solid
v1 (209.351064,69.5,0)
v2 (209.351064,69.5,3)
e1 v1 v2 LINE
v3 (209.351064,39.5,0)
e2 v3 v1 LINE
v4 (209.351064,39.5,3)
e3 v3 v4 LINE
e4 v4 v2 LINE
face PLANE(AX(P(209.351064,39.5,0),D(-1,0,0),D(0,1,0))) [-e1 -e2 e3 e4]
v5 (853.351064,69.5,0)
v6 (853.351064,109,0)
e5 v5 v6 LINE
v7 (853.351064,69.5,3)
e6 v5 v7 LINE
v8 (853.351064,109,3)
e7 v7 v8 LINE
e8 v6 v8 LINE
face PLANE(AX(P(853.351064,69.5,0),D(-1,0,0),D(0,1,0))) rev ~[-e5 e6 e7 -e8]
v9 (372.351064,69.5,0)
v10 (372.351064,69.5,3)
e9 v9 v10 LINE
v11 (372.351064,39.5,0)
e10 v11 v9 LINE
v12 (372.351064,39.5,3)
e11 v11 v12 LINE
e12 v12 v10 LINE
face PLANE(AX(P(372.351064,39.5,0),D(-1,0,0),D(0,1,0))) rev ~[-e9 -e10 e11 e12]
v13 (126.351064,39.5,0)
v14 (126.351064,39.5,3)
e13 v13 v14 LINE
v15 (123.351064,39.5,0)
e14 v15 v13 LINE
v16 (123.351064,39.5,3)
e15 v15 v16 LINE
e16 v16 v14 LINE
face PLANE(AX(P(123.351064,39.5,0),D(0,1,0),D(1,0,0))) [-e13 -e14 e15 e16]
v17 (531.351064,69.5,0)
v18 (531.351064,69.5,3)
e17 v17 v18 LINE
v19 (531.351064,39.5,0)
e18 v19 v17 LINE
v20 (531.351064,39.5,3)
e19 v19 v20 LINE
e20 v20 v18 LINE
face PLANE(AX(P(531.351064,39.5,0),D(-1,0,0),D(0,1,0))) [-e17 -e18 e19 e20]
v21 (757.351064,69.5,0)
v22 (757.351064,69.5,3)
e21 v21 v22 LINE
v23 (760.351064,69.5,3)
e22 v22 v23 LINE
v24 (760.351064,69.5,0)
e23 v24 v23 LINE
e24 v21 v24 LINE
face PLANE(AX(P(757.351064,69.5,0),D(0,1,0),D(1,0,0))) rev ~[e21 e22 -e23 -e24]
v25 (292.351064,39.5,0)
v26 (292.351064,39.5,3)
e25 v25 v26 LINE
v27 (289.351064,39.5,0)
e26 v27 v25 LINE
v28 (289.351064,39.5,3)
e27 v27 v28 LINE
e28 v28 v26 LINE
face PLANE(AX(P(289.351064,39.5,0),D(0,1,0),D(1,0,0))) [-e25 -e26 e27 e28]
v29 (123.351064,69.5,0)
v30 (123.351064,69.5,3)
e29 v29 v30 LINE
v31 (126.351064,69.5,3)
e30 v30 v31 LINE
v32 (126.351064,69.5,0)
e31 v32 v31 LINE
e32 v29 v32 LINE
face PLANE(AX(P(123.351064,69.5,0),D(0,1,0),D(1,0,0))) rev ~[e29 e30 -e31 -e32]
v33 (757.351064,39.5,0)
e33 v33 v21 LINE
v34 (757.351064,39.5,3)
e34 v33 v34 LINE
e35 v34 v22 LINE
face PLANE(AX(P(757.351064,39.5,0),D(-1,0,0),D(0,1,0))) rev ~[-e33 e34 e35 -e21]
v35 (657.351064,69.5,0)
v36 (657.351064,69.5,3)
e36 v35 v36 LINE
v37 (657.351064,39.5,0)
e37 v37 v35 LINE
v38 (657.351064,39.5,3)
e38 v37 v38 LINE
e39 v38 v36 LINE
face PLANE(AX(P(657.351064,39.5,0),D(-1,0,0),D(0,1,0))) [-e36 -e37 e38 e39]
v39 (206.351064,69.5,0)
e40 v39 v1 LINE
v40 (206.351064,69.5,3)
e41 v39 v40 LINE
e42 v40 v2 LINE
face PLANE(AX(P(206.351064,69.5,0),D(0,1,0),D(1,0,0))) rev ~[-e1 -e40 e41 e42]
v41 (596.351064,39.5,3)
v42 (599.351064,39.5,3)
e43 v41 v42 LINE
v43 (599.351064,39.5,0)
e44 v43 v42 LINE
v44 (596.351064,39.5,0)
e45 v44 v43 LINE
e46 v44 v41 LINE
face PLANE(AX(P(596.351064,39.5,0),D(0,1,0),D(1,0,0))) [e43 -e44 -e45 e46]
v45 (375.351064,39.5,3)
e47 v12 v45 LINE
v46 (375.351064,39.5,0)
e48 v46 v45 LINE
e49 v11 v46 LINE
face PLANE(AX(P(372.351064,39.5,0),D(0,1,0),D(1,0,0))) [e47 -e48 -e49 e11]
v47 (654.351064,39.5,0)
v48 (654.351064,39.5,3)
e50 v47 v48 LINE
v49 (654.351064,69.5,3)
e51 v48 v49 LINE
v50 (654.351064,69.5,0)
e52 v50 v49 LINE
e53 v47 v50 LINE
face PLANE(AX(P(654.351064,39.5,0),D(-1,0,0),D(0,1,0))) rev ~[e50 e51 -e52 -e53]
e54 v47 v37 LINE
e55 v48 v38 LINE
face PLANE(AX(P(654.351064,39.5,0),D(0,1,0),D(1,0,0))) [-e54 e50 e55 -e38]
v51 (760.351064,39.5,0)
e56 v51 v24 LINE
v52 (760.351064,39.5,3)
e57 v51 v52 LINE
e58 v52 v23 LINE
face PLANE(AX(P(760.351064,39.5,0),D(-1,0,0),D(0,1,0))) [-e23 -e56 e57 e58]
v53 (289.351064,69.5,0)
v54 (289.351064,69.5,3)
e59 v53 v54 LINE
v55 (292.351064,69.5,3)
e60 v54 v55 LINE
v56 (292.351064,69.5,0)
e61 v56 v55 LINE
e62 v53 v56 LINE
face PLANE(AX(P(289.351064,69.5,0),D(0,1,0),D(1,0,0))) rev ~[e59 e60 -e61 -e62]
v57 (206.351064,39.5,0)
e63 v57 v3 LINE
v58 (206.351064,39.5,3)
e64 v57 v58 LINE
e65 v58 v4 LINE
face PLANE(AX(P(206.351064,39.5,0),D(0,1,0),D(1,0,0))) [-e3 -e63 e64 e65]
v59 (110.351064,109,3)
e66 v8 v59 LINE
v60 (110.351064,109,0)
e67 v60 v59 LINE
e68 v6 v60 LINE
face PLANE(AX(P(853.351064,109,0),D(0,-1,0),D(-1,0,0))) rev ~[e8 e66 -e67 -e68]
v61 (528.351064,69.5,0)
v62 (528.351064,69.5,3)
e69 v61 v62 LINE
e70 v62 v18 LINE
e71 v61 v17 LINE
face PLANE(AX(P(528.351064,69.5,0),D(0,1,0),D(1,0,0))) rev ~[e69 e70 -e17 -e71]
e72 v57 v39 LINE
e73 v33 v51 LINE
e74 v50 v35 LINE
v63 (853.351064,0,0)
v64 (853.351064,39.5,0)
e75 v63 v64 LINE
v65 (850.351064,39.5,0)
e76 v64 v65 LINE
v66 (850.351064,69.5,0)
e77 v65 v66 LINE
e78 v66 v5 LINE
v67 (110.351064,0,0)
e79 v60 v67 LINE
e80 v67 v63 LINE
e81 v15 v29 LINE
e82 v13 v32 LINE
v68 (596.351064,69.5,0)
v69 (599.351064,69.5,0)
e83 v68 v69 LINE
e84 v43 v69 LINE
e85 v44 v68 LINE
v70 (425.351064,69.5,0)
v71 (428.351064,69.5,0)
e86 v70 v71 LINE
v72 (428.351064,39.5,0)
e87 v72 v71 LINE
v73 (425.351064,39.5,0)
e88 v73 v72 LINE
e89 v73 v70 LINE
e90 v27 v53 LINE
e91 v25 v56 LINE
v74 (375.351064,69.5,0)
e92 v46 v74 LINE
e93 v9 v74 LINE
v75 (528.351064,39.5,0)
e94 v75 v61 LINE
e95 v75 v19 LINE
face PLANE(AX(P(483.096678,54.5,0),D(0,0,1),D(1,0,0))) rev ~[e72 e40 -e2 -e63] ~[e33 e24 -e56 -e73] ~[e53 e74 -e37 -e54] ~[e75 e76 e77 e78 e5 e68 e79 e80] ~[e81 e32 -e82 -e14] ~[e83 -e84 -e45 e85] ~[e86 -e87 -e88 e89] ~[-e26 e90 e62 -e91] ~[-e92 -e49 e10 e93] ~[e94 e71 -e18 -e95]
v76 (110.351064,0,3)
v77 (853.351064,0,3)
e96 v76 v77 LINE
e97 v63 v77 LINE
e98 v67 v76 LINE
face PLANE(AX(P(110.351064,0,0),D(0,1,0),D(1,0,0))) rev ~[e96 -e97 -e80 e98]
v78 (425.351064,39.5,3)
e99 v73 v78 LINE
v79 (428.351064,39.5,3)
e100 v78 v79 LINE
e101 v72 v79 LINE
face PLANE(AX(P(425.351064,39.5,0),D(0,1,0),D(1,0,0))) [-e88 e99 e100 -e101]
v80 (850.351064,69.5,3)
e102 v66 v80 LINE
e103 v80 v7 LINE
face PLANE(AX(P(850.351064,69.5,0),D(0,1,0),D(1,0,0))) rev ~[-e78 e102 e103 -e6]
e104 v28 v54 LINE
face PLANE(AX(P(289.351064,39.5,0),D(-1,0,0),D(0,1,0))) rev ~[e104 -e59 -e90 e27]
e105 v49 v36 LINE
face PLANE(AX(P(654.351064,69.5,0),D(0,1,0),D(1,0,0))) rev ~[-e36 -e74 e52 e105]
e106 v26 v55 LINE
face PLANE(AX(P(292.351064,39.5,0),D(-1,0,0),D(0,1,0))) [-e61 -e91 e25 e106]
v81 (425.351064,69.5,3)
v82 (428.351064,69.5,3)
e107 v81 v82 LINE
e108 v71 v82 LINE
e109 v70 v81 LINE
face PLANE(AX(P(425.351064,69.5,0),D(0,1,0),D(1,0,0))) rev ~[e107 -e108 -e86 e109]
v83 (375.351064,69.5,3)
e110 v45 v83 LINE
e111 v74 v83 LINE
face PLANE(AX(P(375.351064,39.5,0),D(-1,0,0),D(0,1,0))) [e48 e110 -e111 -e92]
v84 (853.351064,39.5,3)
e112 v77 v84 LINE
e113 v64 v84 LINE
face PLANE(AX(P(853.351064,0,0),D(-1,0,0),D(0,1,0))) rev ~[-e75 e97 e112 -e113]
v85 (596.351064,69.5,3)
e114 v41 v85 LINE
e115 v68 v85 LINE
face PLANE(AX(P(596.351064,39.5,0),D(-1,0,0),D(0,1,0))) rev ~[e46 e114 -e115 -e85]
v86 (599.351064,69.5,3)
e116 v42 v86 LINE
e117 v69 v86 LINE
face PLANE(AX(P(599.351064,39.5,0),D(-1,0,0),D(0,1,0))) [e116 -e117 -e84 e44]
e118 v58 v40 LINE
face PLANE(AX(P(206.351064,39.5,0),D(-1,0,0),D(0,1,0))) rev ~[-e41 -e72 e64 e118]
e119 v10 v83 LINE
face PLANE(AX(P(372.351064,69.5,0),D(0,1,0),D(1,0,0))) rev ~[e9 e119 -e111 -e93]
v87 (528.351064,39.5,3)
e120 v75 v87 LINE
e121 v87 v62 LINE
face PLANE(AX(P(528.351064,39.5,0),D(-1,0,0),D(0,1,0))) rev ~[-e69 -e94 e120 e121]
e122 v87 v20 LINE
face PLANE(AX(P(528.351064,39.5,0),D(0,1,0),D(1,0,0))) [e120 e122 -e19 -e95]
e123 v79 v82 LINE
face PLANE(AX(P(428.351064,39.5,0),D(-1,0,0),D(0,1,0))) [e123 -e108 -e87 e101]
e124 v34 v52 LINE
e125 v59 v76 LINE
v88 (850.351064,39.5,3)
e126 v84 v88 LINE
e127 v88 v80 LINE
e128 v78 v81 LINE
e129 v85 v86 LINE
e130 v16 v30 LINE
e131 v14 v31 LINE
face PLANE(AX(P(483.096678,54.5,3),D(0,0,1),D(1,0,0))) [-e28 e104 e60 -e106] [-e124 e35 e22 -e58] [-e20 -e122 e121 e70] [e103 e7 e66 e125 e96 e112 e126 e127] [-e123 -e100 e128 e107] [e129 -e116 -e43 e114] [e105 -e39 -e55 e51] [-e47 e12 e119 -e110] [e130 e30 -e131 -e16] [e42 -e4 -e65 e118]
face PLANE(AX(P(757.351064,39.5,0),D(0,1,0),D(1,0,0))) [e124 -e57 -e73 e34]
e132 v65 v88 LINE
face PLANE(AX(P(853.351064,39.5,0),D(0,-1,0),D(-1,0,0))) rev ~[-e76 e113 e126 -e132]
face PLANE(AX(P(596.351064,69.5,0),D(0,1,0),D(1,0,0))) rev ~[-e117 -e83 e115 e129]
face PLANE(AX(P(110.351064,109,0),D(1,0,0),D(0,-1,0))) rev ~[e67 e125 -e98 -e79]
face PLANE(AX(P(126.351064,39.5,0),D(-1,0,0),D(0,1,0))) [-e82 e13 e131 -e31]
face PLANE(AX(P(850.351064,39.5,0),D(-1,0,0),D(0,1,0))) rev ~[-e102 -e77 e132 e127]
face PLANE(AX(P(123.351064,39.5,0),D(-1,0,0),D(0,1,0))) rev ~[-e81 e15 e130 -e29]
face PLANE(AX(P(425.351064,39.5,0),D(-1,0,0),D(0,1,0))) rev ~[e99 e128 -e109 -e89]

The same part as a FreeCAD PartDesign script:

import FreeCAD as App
import Part
import Sketcher


def add_polygon(sketch, points):
    """Adds a closed chain of lines whose ends are joined by coincident constraints."""
    first, n = sketch.GeometryCount, len(points)
    for a, b in zip(points, points[1:] + points[:1]):
        sketch.addGeometry(Part.LineSegment(App.Vector(*a, 0), App.Vector(*b, 0)), False)
    for i in range(n):
        sketch.addConstraint(Sketcher.Constraint("Coincident", first + i, 2, first + (i + 1) % n, 1))

doc = App.newDocument("Part")
params = doc.addObject("Spreadsheet::Sheet", "Params")
for row, (alias, value) in enumerate([
    ("sketch1_width", "743 mm"),
    ("sketch1_width2", "3 mm"),
    ("sketch1_height", "109 mm"),
    ("sketch1_height2", "30 mm"),
    ("pad1_length", "3 mm"),
], start=1):
    params.set(f"A{row}", alias)
    params.set(f"B{row}", "=" + value)
    params.setAlias(f"B{row}", alias)

body = doc.addObject("PartDesign::Body", "Body")

sketch1 = body.newObject("Sketcher::SketchObject", "Sketch")
sketch1.AttachmentSupport = (doc.getObject("XY_Plane"), [""])
sketch1.MapMode = "FlatFace"
add_polygon(sketch1, [(853.4, 109), (110.4, 109), (110.4, 0), (853.4, 0), (853.4, 39.5), (850.4, 39.5), (850.4, 69.5), (853.4, 69.5)])
add_polygon(sketch1, [(126.4, 39.5), (123.4, 39.5), (123.4, 69.5), (126.4, 69.5)])
add_polygon(sketch1, [(209.4, 39.5), (206.4, 39.5), (206.4, 69.5), (209.4, 69.5)])
add_polygon(sketch1, [(292.4, 39.5), (289.4, 39.5), (289.4, 69.5), (292.4, 69.5)])
add_polygon(sketch1, [(375.4, 39.5), (372.4, 39.5), (372.4, 69.5), (375.4, 69.5)])
add_polygon(sketch1, [(428.4, 39.5), (425.4, 39.5), (425.4, 69.5), (428.4, 69.5)])
add_polygon(sketch1, [(531.4, 39.5), (528.4, 39.5), (528.4, 69.5), (531.4, 69.5)])
add_polygon(sketch1, [(599.4, 39.5), (596.4, 39.5), (596.4, 69.5), (599.4, 69.5)])
add_polygon(sketch1, [(657.4, 39.5), (654.4, 39.5), (654.4, 69.5), (657.4, 69.5)])
add_polygon(sketch1, [(760.4, 39.5), (757.4, 39.5), (757.4, 69.5), (760.4, 69.5)])
sketch1.addConstraint(Sketcher.Constraint("Horizontal", 0))
sketch1.addConstraint(Sketcher.Constraint("Vertical", 1))
sketch1.addConstraint(Sketcher.Constraint("Horizontal", 2))
sketch1.addConstraint(Sketcher.Constraint("Vertical", 3))
sketch1.addConstraint(Sketcher.Constraint("Horizontal", 4))
sketch1.addConstraint(Sketcher.Constraint("Vertical", 5))
sketch1.addConstraint(Sketcher.Constraint("Horizontal", 6))
sketch1.addConstraint(Sketcher.Constraint("Vertical", 7))
sketch1.addConstraint(Sketcher.Constraint("Horizontal", 8))
sketch1.addConstraint(Sketcher.Constraint("Vertical", 9))
sketch1.addConstraint(Sketcher.Constraint("Horizontal", 10))
sketch1.addConstraint(Sketcher.Constraint("Vertical", 11))
sketch1.addConstraint(Sketcher.Constraint("Horizontal", 12))
sketch1.addConstraint(Sketcher.Constraint("Vertical", 13))
sketch1.addConstraint(Sketcher.Constraint("Horizontal", 14))
sketch1.addConstraint(Sketcher.Constraint("Vertical", 15))
sketch1.addConstraint(Sketcher.Constraint("Horizontal", 16))
sketch1.addConstraint(Sketcher.Constraint("Vertical", 17))
sketch1.addConstraint(Sketcher.Constraint("Horizontal", 18))
sketch1.addConstraint(Sketcher.Constraint("Vertical", 19))
sketch1.addConstraint(Sketcher.Constraint("Horizontal", 20))
sketch1.addConstraint(Sketcher.Constraint("Vertical", 21))
sketch1.addConstraint(Sketcher.Constraint("Horizontal", 22))
sketch1.addConstraint(Sketcher.Constraint("Vertical", 23))
sketch1.addConstraint(Sketcher.Constraint("Horizontal", 24))
sketch1.addConstraint(Sketcher.Constraint("Vertical", 25))
sketch1.addConstraint(Sketcher.Constraint("Horizontal", 26))
sketch1.addConstraint(Sketcher.Constraint("Vertical", 27))
sketch1.addConstraint(Sketcher.Constraint("Horizontal", 28))
sketch1.addConstraint(Sketcher.Constraint("Vertical", 29))
sketch1.addConstraint(Sketcher.Constraint("Horizontal", 30))
sketch1.addConstraint(Sketcher.Constraint("Vertical", 31))
sketch1.addConstraint(Sketcher.Constraint("Horizontal", 32))
sketch1.addConstraint(Sketcher.Constraint("Vertical", 33))
sketch1.addConstraint(Sketcher.Constraint("Horizontal", 34))
sketch1.addConstraint(Sketcher.Constraint("Vertical", 35))
sketch1.addConstraint(Sketcher.Constraint("Horizontal", 36))
sketch1.addConstraint(Sketcher.Constraint("Vertical", 37))
sketch1.addConstraint(Sketcher.Constraint("Horizontal", 38))
sketch1.addConstraint(Sketcher.Constraint("Vertical", 39))
sketch1.addConstraint(Sketcher.Constraint("Horizontal", 40))
sketch1.addConstraint(Sketcher.Constraint("Vertical", 41))
sketch1.addConstraint(Sketcher.Constraint("Horizontal", 42))
sketch1.addConstraint(Sketcher.Constraint("Vertical", 43))
sketch1.addConstraint(Sketcher.Constraint("PointOnObject", 1, 2, -1))
sketch1.addConstraint(Sketcher.Constraint("Horizontal", 4, 2, 8, 2))
sketch1.addConstraint(Sketcher.Constraint("Horizontal", 6, 2, 9, 2))
sketch1.addConstraint(Sketcher.Constraint("Horizontal", 11, 2, 12, 2))
sketch1.addConstraint(Sketcher.Constraint("Horizontal", 10, 2, 13, 2))
sketch1.addConstraint(Sketcher.Constraint("Horizontal", 15, 2, 16, 2))
sketch1.addConstraint(Sketcher.Constraint("Horizontal", 14, 2, 17, 2))
sketch1.addConstraint(Sketcher.Constraint("Horizontal", 19, 2, 20, 2))
sketch1.addConstraint(Sketcher.Constraint("Horizontal", 18, 2, 21, 2))
sketch1.addConstraint(Sketcher.Constraint("Horizontal", 23, 2, 24, 2))
sketch1.addConstraint(Sketcher.Constraint("Horizontal", 22, 2, 25, 2))
sketch1.addConstraint(Sketcher.Constraint("Horizontal", 27, 2, 28, 2))
sketch1.addConstraint(Sketcher.Constraint("Horizontal", 26, 2, 29, 2))
sketch1.addConstraint(Sketcher.Constraint("Horizontal", 31, 2, 32, 2))
sketch1.addConstraint(Sketcher.Constraint("Horizontal", 30, 2, 33, 2))
sketch1.addConstraint(Sketcher.Constraint("Horizontal", 35, 2, 36, 2))
sketch1.addConstraint(Sketcher.Constraint("Horizontal", 34, 2, 37, 2))
sketch1.addConstraint(Sketcher.Constraint("Horizontal", 39, 2, 40, 2))
sketch1.addConstraint(Sketcher.Constraint("Horizontal", 38, 2, 41, 2))
sketch1.addConstraint(Sketcher.Constraint("Vertical", 3, 2, 6, 2))
sketch1.addConstraint(Sketcher.Constraint("Equal", 6, 8))
sketch1.addConstraint(Sketcher.Constraint("Equal", 10, 12))
sketch1.addConstraint(Sketcher.Constraint("Equal", 14, 16))
sketch1.addConstraint(Sketcher.Constraint("Equal", 18, 20))
sketch1.addConstraint(Sketcher.Constraint("Equal", 22, 24))
sketch1.addConstraint(Sketcher.Constraint("Equal", 26, 28))
sketch1.addConstraint(Sketcher.Constraint("Equal", 30, 32))
sketch1.addConstraint(Sketcher.Constraint("Equal", 34, 36))
sketch1.addConstraint(Sketcher.Constraint("Equal", 38, 40))
sketch1.addConstraint(Sketcher.Constraint("Equal", 3, 7))
sketch1.addConstraint(Sketcher.Constraint("DistanceX", 0, 2, 0, 1, 743.0))
sketch1.addConstraint(Sketcher.Constraint("DistanceX", 4, 2, 4, 1, 3.0))
sketch1.addConstraint(Sketcher.Constraint("DistanceY", 1, 2, 1, 1, 109.0))
sketch1.addConstraint(Sketcher.Constraint("DistanceY", 5, 1, 5, 2, 30.0))
sketch1.addConstraint(Sketcher.Constraint("DistanceX", 1, 2, 8, 2, 13.0))
sketch1.addConstraint(Sketcher.Constraint("DistanceX", 11, 2, 12, 2, 80.0))
sketch1.addConstraint(Sketcher.Constraint("DistanceX", 15, 2, 16, 2, 80.0))
sketch1.addConstraint(Sketcher.Constraint("DistanceX", 19, 2, 20, 2, 80.0))
sketch1.addConstraint(Sketcher.Constraint("DistanceX", 23, 2, 24, 2, 50.0))
sketch1.addConstraint(Sketcher.Constraint("DistanceX", 27, 2, 28, 2, 100.0))
sketch1.addConstraint(Sketcher.Constraint("DistanceX", 31, 2, 32, 2, 65.0))
sketch1.addConstraint(Sketcher.Constraint("DistanceX", 35, 2, 36, 2, 55.0))
sketch1.addConstraint(Sketcher.Constraint("DistanceX", 40, 2, 4, 2, 93.0))
sketch1.addConstraint(Sketcher.Constraint("DistanceX", -1, 1, 0, 2, 110.351064))
sketch1.setExpression("Constraints[118]", "Params.sketch1_width")
sketch1.setExpression("Constraints[119]", "Params.sketch1_width2")
sketch1.setExpression("Constraints[120]", "Params.sketch1_height")
sketch1.setExpression("Constraints[121]", "Params.sketch1_height2")
pad1 = body.newObject("PartDesign::Pad", "Pad")
pad1.Profile = sketch1
pad1.setExpression("Length", "Params.pad1_length")

doc.recompute()
